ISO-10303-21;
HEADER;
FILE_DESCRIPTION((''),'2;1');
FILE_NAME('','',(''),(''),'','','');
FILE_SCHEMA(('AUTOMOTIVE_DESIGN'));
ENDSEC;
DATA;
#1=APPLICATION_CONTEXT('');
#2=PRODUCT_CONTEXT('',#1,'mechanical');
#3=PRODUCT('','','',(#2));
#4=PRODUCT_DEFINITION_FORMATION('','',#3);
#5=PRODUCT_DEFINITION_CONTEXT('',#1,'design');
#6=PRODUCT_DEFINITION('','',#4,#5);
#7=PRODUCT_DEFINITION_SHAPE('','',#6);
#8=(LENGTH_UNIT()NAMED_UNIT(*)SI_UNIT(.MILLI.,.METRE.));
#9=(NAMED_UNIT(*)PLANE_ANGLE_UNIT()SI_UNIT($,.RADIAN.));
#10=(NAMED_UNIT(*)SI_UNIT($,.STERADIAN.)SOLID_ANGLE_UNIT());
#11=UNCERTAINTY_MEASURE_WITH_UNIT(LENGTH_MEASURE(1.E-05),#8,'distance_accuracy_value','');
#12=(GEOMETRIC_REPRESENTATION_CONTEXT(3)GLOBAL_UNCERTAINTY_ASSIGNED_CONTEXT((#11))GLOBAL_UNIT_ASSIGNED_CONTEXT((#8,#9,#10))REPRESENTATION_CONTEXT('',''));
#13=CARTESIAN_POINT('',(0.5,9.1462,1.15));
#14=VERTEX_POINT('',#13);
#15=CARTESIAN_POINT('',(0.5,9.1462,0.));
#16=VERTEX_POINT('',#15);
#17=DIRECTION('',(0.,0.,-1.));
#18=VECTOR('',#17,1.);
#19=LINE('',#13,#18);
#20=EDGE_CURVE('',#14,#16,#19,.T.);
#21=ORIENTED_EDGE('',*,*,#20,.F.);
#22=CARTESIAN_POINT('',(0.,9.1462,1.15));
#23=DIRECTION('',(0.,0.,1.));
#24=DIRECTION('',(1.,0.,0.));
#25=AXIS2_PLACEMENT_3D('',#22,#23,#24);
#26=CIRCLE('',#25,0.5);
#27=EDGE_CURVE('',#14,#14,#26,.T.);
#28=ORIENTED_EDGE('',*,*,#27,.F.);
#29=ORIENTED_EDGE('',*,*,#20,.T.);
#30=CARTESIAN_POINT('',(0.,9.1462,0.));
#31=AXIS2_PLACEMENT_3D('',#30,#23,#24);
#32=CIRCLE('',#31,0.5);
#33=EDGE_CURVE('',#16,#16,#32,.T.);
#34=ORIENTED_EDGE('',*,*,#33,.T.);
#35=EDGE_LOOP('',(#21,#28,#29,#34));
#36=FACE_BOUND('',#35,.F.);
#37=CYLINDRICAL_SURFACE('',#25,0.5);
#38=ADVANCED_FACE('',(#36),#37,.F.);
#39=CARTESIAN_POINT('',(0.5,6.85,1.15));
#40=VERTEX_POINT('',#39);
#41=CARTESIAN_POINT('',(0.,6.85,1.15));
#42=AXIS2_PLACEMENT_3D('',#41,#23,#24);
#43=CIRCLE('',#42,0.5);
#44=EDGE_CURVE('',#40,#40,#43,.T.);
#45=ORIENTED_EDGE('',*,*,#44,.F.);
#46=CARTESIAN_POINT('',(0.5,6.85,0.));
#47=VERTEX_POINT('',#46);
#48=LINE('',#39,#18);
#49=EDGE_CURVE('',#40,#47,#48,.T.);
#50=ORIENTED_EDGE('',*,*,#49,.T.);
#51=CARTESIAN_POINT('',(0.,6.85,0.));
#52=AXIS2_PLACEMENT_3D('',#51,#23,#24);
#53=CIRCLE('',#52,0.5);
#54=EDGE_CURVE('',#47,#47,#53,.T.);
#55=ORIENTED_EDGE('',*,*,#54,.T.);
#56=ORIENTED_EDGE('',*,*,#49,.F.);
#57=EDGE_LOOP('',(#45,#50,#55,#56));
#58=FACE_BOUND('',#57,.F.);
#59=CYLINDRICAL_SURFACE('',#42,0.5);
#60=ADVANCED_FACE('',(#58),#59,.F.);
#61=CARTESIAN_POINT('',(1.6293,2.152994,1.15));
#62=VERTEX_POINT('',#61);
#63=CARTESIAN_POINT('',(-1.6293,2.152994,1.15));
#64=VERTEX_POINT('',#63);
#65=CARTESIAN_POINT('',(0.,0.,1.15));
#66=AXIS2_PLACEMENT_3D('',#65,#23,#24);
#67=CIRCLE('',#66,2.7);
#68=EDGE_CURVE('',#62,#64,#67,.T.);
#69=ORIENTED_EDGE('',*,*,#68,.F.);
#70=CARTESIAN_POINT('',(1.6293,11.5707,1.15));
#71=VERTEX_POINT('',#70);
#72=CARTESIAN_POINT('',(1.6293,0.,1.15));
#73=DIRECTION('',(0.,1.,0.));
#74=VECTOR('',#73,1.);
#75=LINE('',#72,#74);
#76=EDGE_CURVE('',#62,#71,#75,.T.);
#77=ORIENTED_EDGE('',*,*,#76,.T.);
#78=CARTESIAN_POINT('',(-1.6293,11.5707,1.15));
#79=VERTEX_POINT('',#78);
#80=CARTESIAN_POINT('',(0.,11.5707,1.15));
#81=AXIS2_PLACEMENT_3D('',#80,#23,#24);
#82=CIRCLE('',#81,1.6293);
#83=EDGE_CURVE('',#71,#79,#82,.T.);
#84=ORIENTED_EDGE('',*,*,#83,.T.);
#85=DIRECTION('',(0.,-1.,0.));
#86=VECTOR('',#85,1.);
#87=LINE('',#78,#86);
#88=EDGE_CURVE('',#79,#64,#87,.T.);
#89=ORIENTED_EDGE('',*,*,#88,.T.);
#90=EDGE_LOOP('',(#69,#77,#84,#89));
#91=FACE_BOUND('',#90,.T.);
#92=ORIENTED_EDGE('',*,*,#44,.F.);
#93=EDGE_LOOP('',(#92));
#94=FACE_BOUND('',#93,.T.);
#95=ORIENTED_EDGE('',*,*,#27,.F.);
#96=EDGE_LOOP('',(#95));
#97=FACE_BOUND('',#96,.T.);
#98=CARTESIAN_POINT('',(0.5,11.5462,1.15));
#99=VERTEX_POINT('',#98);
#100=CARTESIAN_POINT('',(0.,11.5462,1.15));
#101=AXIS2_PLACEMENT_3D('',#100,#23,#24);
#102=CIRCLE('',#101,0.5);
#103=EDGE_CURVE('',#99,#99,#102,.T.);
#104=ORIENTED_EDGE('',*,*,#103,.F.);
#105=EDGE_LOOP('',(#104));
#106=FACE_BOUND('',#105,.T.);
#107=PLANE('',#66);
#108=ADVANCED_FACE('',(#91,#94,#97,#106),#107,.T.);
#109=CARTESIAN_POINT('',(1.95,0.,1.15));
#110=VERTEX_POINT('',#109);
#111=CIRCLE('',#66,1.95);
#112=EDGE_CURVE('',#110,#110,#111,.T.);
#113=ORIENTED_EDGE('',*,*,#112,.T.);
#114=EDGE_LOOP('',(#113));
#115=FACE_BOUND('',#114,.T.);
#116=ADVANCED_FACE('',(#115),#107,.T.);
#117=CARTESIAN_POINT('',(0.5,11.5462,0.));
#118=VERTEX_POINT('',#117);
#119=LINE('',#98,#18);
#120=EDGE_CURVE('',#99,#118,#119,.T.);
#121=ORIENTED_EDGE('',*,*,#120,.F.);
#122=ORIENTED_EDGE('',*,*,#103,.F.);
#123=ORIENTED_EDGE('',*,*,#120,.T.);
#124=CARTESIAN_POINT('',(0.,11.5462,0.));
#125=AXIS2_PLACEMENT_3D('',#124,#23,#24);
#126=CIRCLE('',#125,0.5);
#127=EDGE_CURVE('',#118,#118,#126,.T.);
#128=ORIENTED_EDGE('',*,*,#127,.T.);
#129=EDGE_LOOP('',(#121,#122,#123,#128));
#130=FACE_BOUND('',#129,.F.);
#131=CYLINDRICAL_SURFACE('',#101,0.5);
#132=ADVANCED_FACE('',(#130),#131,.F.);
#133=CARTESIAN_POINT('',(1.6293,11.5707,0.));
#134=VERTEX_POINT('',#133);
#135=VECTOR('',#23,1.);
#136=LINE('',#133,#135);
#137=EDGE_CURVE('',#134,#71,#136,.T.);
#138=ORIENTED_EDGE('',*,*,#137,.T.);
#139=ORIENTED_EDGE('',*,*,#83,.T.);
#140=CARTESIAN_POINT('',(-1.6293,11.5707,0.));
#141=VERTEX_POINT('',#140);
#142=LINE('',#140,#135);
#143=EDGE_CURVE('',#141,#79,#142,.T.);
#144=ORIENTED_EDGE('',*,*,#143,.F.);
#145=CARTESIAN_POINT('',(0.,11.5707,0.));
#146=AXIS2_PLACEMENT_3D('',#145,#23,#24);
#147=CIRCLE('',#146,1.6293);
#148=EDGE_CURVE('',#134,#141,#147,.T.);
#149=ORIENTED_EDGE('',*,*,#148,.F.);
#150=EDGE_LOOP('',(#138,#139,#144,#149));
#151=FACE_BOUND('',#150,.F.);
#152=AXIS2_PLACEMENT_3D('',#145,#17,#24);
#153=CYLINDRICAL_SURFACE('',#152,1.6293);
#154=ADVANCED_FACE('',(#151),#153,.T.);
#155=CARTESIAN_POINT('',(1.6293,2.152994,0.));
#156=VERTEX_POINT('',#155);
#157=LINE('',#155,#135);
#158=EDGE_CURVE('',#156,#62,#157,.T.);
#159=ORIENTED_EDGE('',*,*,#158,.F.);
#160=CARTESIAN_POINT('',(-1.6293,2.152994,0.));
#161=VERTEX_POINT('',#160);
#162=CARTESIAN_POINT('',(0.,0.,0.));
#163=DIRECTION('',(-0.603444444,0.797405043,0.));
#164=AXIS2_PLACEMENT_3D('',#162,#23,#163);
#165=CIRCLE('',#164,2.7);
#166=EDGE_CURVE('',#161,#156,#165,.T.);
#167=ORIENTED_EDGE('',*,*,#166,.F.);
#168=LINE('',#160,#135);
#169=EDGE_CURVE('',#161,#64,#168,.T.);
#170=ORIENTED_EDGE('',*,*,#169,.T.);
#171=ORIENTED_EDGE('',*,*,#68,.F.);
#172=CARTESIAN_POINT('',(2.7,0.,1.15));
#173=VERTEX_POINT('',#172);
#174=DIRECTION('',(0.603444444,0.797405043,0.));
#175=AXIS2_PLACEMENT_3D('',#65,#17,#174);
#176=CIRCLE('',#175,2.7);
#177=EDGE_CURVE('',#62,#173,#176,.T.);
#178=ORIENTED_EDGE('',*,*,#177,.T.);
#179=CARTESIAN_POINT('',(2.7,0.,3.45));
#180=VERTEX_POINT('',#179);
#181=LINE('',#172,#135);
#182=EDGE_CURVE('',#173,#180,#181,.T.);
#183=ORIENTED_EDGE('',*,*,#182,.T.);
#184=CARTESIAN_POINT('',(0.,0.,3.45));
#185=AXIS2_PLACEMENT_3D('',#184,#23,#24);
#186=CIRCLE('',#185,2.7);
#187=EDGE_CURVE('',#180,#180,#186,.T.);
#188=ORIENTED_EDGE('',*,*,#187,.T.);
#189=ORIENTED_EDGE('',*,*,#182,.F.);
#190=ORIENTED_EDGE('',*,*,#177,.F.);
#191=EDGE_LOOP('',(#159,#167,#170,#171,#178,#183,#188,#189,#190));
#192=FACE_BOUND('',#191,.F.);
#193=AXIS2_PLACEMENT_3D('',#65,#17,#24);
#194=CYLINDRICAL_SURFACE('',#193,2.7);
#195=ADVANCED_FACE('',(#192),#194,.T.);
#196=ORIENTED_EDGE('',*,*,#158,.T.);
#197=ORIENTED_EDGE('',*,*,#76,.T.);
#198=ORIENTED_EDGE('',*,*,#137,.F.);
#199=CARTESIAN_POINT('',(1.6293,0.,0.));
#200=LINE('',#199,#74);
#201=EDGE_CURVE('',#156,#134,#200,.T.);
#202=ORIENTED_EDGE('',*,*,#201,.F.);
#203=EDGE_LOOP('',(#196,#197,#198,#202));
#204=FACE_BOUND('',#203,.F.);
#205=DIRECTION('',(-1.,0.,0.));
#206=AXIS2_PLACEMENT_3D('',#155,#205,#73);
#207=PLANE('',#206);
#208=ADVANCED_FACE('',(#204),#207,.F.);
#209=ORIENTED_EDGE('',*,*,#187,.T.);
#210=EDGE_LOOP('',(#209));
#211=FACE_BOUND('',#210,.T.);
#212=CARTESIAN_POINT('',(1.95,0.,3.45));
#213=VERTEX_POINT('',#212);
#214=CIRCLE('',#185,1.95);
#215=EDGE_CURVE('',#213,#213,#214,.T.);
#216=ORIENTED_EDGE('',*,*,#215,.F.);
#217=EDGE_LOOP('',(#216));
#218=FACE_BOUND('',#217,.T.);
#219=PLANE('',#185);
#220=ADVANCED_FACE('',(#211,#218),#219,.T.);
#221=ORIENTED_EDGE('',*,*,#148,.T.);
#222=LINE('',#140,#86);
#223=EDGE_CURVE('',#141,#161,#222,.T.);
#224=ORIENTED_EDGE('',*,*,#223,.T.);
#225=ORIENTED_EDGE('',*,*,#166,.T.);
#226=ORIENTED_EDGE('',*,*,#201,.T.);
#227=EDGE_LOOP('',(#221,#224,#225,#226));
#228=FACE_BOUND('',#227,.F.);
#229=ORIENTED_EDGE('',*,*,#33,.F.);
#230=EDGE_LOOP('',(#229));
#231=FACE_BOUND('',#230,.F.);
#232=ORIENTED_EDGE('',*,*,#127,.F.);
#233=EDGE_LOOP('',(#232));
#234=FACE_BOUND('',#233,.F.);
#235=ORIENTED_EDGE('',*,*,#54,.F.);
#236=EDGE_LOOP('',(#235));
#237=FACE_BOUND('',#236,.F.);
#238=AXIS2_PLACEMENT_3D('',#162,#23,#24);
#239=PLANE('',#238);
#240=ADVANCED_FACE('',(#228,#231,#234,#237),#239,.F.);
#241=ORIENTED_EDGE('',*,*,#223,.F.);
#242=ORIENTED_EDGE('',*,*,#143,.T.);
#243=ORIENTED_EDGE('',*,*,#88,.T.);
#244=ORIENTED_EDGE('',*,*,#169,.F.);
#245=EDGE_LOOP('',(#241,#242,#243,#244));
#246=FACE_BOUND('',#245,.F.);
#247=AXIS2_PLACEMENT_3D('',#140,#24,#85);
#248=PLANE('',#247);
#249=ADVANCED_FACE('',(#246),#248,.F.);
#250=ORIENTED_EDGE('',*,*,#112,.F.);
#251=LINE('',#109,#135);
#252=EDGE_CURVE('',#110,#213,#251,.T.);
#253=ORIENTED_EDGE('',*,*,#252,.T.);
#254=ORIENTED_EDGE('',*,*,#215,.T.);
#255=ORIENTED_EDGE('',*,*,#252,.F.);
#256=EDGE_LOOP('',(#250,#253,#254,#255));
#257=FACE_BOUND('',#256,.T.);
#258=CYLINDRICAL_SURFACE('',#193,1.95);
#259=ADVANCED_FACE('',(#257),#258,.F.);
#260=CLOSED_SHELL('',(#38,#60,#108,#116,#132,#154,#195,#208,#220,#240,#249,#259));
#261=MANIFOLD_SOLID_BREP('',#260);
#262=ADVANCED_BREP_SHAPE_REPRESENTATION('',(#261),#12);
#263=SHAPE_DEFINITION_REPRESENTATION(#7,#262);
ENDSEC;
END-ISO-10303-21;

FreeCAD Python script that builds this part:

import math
import FreeCAD as App
import Part
import Sketcher
from FreeCAD import Vector
Q = App.Units.Quantity

doc = App.newDocument("Part")
params = doc.addObject("Spreadsheet::Sheet", "Params")
for row, (alias, value) in enumerate([
    ("sketch1_radius", "2.7 mm"),
    ("pad1_length", "1.15 mm"),
    ("sketch2_diameter", "3.9 mm"),
    ("sketch2_diameter2", "5.4 mm"),
    ("pad2_length", "2.3 mm"),
    ("sketch3_diameter", "1 mm"),
    ("pocket1_length", "2.3 mm"),
], start=1):
    params.set(f"A{row}", alias)
    params.set(f"B{row}", "=" + value)
    params.setAlias(f"B{row}", alias)

body = doc.addObject("PartDesign::Body", "Body")

sketch1 = body.newObject("Sketcher::SketchObject", "Sketch")
sketch1.AttachmentSupport = (doc.getObject("XY_Plane"), [""])
sketch1.MapMode = "FlatFace"
sketch1.addGeometry(Part.ArcOfCircle(Part.Circle(Vector(0, 0, 0), Vector(0, 0, 1), 2.7), math.radians(127), math.radians(413)), False)
sketch1.addGeometry(Part.LineSegment(Vector(1.6, 2.2, 0), Vector(1.6, 11.6, 0)), False)
sketch1.addGeometry(Part.ArcOfCircle(Part.Circle(Vector(0, 11.6, 0), Vector(0, 0, 1), 1.6), math.radians(0), math.radians(180)), False)
sketch1.addGeometry(Part.LineSegment(Vector(-1.6, 11.6, 0), Vector(-1.6, 2.2, 0)), False)
sketch1.addConstraint(Sketcher.Constraint("Coincident", 0, 2, 1, 1))
sketch1.addConstraint(Sketcher.Constraint("Tangent", 1, 2, 2, 1))
sketch1.addConstraint(Sketcher.Constraint("Tangent", 2, 2, 3, 1))
sketch1.addConstraint(Sketcher.Constraint("Coincident", 3, 2, 0, 1))
sketch1.addConstraint(Sketcher.Constraint("Vertical", 1))
sketch1.addConstraint(Sketcher.Constraint("Vertical", 3))
sketch1.addConstraint(Sketcher.Constraint("Coincident", 0, 3, -1, 1))
sketch1.addConstraint(Sketcher.Constraint("PointOnObject", 2, 3, -2))
sketch1.addConstraint(Sketcher.Constraint("Radius", 0, Q("2.7 mm")))
sketch1.addConstraint(Sketcher.Constraint("Radius", 2, Q("1.6293 mm")))
sketch1.addConstraint(Sketcher.Constraint("DistanceY", 1, 1, 1, 2, Q("9.4177 mm")))
sketch1.setExpression("Constraints[8]", "Params.sketch1_radius")
pad1 = body.newObject("PartDesign::Pad", "Pad")
pad1.Profile = sketch1
pad1.setExpression("Length", "Params.pad1_length")

sketch2 = body.newObject("Sketcher::SketchObject", "Sketch001")
sketch2.AttachmentSupport = (doc.getObject("XY_Plane"), [""])
sketch2.MapMode = "FlatFace"
sketch2.AttachmentOffset = App.Placement(Vector(0, 0, 1.15), App.Rotation())
sketch2.addGeometry(Part.Circle(Vector(0, 0, 0), Vector(0, 0, 1), 2.7), False)
sketch2.addGeometry(Part.Circle(Vector(0, 0, 0), Vector(0, 0, 1), 1.9), False)
sketch2.addConstraint(Sketcher.Constraint("Coincident", 0, 3, -1, 1))
sketch2.addConstraint(Sketcher.Constraint("Coincident", 1, 3, -1, 1))
sketch2.addConstraint(Sketcher.Constraint("Diameter", 1, Q("3.9 mm")))
sketch2.addConstraint(Sketcher.Constraint("Diameter", 0, Q("5.4 mm")))
sketch2.setExpression("Constraints[2]", "Params.sketch2_diameter")
sketch2.setExpression("Constraints[3]", "Params.sketch2_diameter2")
pad2 = body.newObject("PartDesign::Pad", "Pad001")
pad2.Profile = sketch2
pad2.setExpression("Length", "Params.pad2_length")

sketch3 = body.newObject("Sketcher::SketchObject", "Sketch002")
sketch3.AttachmentSupport = (doc.getObject("XY_Plane"), [""])
sketch3.MapMode = "FlatFace"
sketch3.AttachmentOffset = App.Placement(Vector(0, 0, 1.15), App.Rotation())
sketch3.addGeometry(Part.Circle(Vector(0, 11.5, 0), Vector(0, 0, 1), 0.5), False)
sketch3.addGeometry(Part.Circle(Vector(0, 9.1, 0), Vector(0, 0, 1), 0.5), False)
sketch3.addGeometry(Part.Circle(Vector(0, 6.8, 0), Vector(0, 0, 1), 0.5), False)
sketch3.addConstraint(Sketcher.Constraint("Equal", 0, 1))
sketch3.addConstraint(Sketcher.Constraint("Equal", 1, 2))
sketch3.addConstraint(Sketcher.Constraint("PointOnObject", 0, 3, -2))
sketch3.addConstraint(Sketcher.Constraint("PointOnObject", 1, 3, -2))
sketch3.addConstraint(Sketcher.Constraint("PointOnObject", 2, 3, -2))
sketch3.addConstraint(Sketcher.Constraint("Diameter", 0, Q("1 mm")))
sketch3.addConstraint(Sketcher.Constraint("DistanceY", 1, 3, 0, 3, Q("2.4 mm")))
sketch3.addConstraint(Sketcher.Constraint("DistanceY", -1, 1, 2, 3, Q("6.85 mm")))
sketch3.addConstraint(Sketcher.Constraint("DistanceY", -1, 1, 0, 3, Q("11.5462 mm")))
sketch3.setExpression("Constraints[5]", "Params.sketch3_diameter")
pocket1 = body.newObject("PartDesign::Pocket", "Pocket")
pocket1.Profile = sketch3
pocket1.setExpression("Length", "Params.pocket1_length")

doc.recompute()
